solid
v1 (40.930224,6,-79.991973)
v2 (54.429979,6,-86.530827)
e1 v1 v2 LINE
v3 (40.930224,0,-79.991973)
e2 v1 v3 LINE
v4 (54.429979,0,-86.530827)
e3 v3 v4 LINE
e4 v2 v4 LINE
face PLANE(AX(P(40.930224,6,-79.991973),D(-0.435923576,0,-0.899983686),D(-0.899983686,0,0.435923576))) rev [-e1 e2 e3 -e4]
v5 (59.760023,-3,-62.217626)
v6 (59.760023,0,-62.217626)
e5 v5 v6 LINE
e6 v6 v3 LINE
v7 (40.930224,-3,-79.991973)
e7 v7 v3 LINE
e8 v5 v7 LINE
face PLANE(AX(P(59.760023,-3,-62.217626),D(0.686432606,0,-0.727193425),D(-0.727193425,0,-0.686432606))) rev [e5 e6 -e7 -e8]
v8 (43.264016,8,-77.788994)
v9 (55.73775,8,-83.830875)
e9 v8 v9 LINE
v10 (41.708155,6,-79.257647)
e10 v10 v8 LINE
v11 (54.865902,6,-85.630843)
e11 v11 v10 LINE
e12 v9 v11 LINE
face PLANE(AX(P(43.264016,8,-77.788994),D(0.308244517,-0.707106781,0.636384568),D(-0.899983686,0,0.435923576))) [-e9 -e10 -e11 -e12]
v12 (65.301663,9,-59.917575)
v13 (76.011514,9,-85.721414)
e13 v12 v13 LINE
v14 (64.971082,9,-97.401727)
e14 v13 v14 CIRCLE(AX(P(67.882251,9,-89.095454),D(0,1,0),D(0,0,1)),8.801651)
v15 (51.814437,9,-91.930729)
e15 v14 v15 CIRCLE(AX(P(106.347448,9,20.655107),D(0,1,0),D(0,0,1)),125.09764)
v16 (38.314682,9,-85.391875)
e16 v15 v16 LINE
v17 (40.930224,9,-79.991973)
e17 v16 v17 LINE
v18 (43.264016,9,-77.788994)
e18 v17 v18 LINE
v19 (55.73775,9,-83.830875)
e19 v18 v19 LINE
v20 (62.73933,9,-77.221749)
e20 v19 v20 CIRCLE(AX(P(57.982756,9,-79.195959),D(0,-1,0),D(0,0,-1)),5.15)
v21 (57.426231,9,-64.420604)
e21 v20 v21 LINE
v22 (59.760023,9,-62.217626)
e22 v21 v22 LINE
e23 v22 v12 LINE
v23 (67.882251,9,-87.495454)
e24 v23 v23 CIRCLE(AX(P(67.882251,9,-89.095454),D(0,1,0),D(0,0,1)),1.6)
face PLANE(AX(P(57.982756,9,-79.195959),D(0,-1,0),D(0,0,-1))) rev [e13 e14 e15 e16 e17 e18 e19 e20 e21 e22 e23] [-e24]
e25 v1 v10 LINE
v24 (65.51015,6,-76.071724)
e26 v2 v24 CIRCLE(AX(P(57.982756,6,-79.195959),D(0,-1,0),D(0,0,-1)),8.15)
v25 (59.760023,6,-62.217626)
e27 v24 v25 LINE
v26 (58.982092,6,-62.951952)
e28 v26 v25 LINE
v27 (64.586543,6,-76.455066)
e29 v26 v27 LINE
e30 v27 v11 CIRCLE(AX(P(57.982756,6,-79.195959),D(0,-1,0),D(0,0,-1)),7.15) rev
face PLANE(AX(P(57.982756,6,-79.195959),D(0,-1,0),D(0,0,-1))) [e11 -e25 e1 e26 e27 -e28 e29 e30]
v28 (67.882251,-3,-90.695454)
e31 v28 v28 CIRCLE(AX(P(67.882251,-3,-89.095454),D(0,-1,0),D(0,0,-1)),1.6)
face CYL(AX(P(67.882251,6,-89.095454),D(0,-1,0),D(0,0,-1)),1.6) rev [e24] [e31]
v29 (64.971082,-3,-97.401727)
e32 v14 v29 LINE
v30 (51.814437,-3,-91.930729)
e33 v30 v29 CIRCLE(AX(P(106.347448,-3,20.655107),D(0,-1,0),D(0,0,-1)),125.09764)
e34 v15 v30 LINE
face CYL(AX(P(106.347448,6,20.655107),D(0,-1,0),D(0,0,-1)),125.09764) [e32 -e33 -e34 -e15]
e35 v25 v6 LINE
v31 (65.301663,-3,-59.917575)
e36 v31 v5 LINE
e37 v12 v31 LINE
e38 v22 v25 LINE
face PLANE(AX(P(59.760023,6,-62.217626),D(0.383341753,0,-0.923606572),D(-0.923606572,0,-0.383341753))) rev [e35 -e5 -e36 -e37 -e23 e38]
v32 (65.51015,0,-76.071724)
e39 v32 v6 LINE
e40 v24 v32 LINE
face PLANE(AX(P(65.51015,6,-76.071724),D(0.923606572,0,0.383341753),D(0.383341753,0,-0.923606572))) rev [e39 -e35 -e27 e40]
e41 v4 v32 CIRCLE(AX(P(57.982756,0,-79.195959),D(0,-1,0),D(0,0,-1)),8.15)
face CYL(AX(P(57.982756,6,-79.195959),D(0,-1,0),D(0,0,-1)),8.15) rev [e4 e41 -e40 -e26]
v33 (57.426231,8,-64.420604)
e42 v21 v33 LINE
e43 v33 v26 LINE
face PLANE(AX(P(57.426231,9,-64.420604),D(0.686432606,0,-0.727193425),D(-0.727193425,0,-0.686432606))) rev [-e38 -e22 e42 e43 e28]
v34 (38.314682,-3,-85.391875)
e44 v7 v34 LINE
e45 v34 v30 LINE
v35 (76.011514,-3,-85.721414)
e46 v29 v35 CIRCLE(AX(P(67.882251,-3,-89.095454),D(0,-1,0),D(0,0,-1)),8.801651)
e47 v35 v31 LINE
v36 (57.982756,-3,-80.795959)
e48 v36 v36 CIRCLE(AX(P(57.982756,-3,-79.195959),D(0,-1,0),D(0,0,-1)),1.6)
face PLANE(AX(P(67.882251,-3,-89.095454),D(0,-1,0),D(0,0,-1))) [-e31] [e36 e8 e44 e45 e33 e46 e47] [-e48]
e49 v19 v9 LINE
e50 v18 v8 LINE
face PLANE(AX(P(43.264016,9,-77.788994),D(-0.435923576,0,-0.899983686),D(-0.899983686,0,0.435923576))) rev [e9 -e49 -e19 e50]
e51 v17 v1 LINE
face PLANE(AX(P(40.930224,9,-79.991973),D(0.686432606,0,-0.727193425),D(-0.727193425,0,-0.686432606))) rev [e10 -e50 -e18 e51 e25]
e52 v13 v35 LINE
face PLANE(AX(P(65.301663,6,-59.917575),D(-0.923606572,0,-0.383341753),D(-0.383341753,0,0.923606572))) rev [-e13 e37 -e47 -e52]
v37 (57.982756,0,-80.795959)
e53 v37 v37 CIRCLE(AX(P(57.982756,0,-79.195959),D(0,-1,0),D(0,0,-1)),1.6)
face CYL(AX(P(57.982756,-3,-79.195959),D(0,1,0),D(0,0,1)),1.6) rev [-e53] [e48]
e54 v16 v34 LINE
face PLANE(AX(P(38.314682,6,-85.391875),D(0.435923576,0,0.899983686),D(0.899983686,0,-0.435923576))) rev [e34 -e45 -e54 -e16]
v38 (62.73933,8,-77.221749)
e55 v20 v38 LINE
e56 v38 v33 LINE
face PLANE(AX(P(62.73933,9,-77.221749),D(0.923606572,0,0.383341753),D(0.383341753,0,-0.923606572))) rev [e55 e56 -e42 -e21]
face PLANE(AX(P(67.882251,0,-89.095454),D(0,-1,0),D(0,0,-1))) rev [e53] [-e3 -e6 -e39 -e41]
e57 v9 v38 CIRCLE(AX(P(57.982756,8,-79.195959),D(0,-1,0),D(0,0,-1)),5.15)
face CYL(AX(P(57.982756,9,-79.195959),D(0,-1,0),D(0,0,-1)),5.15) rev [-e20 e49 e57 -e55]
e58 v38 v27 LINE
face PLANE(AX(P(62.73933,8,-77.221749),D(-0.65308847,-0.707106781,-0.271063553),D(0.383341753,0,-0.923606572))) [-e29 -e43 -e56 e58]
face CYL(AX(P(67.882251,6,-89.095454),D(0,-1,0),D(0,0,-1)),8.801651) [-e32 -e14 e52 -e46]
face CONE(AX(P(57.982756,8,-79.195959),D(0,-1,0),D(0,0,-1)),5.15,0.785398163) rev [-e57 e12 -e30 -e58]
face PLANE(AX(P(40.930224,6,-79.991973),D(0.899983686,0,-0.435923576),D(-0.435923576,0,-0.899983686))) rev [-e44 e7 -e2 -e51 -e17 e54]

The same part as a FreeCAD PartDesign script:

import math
import FreeCAD as App
import Part
import Sketcher


def edges_at(feature, points):
    """Names of the edges that pass closest to the given points."""
    edges = feature.Shape.Edges
    near = lambda p: min(range(len(edges)), key=lambda i: edges[i].distToShape(Part.Vertex(*p))[0])
    return sorted({f"Edge{near(p) + 1}" for p in points})

doc = App.newDocument("Part")
body = doc.addObject("PartDesign::Body", "Body")

# Sketch on XZ plane
sketch1 = body.newObject("Sketcher::SketchObject", "Sketch")
sketch1.AttachmentSupport = (doc.getObject("XZ_Plane"), [""])
sketch1.MapMode = "FlatFace"
sketch1.addGeometry([
    Part.LineSegment(App.Vector(40.9, -80, 0), App.Vector(54.4, -86.5, 0)),  # 0
    Part.ArcOfCircle(Part.Circle(App.Vector(58, -79.2, 0), App.Vector(0, 0, 1), 8.2), math.radians(-116), math.radians(23)),  # 1
    Part.LineSegment(App.Vector(65.5, -76.1, 0), App.Vector(59.8, -62.2, 0)),  # 2
    Part.LineSegment(App.Vector(59.8, -62.2, 0), App.Vector(65.3, -59.9, 0)),  # 3
    Part.LineSegment(App.Vector(65.3, -59.9, 0), App.Vector(76, -85.7, 0)),  # 4
    Part.ArcOfCircle(Part.Circle(App.Vector(67.9, -89.1, 0), App.Vector(0, 0, 1), 8.8), math.radians(-109), math.radians(23)),  # 5
    Part.ArcOfCircle(Part.Circle(App.Vector(106.3, 20.7, 0), App.Vector(0, 0, 1), 125.1), math.radians(-115.84), math.radians(-109.31)),  # 6
    Part.LineSegment(App.Vector(51.8, -91.9, 0), App.Vector(38.3, -85.4, 0)),  # 7
    Part.LineSegment(App.Vector(38.3, -85.4, 0), App.Vector(40.9, -80, 0)),  # 8
    Part.Circle(App.Vector(67.9, -89.1, 0), App.Vector(0, 0, 1), 1.6),  # 9
], False)
sketch1.addConstraint([
    Sketcher.Constraint("Tangent", 0, 2, 1, 1),
    Sketcher.Constraint("Tangent", 1, 2, 2, 1),
    Sketcher.Constraint("Coincident", 2, 2, 3, 1),
    Sketcher.Constraint("Coincident", 3, 2, 4, 1),
    Sketcher.Constraint("Tangent", 4, 2, 5, 2),
    Sketcher.Constraint("Tangent", 5, 1, 6, 2),
    Sketcher.Constraint("Tangent", 6, 1, 7, 1),
    Sketcher.Constraint("Coincident", 7, 2, 8, 1),
    Sketcher.Constraint("Coincident", 8, 2, 0, 1),
    Sketcher.Constraint("Coincident", 9, 3, 5, 3),
    Sketcher.Constraint("Perpendicular", 2, 3),
    Sketcher.Constraint("Perpendicular", 3, 4),
    Sketcher.Constraint("Parallel", 0, 7),
    Sketcher.Constraint("Perpendicular", 7, 8),
    Sketcher.Constraint("Equal", 0, 2),
    Sketcher.Constraint("Equal", 2, 7),
    Sketcher.Constraint("Equal", 3, 8),
    Sketcher.Constraint("Diameter", 9, 3.2),
    Sketcher.Constraint("Radius", 1, 8.15),
    Sketcher.Constraint("Distance", 0, 15.0),
    Sketcher.Constraint("Distance", 3, 6.0),
    Sketcher.Constraint("Radius", 5, 8.801651),
    Sketcher.Constraint("Radius", 6, 125.09764),
    Sketcher.Constraint("DistanceY", 5, 1, 6, 1, 5.470998),
    Sketcher.Constraint("DistanceX", 1, 2, 5, 3, 2.372101),
    Sketcher.Constraint("DistanceY", 1, 3, -1, 1, 79.195959),
    Sketcher.Constraint("DistanceX", -1, 1, 5, 3, 67.882251),
])
pad1 = body.newObject("PartDesign::Pad", "Pad")
pad1.Profile = sketch1
pad1.Length = 6
pad1.Reversed = True

# Sketch on XZ plane
sketch2 = body.newObject("Sketcher::SketchObject", "Sketch001")
sketch2.AttachmentSupport = (doc.getObject("XZ_Plane"), [""])
sketch2.MapMode = "FlatFace"
sketch2.AttachmentOffset = App.Placement(App.Vector(0, 0, 3), App.Rotation())
sketch2.addGeometry([
    Part.LineSegment(App.Vector(76, -85.7, 0), App.Vector(65.3, -59.9, 0)),  # 0
    Part.LineSegment(App.Vector(65.3, -59.9, 0), App.Vector(59.8, -62.2, 0)),  # 1
    Part.LineSegment(App.Vector(59.8, -62.2, 0), App.Vector(40.9, -80, 0)),  # 2
    Part.LineSegment(App.Vector(40.9, -80, 0), App.Vector(38.3, -85.4, 0)),  # 3
    Part.LineSegment(App.Vector(38.3, -85.4, 0), App.Vector(51.8, -91.9, 0)),  # 4
    Part.ArcOfCircle(Part.Circle(App.Vector(106.3, 20.7, 0), App.Vector(0, 0, 1), 125.1), math.radians(-115.84), math.radians(-109.31)),  # 5
    Part.ArcOfCircle(Part.Circle(App.Vector(67.9, -89.1, 0), App.Vector(0, 0, 1), 8.8), math.radians(-109), math.radians(23)),  # 6
    Part.Circle(App.Vector(67.9, -89.1, 0), App.Vector(0, 0, 1), 1.6),  # 7
    Part.Circle(App.Vector(58, -79.2, 0), App.Vector(0, 0, 1), 1.6),  # 8
], False)
sketch2.addConstraint([
    Sketcher.Constraint("Coincident", 0, 2, 1, 1),
    Sketcher.Constraint("Coincident", 1, 2, 2, 1),
    Sketcher.Constraint("Coincident", 2, 2, 3, 1),
    Sketcher.Constraint("Coincident", 3, 2, 4, 1),
    Sketcher.Constraint("Tangent", 4, 2, 5, 1),
    Sketcher.Constraint("Tangent", 5, 2, 6, 1),
    Sketcher.Constraint("Tangent", 6, 2, 0, 1),
    Sketcher.Constraint("Coincident", 7, 3, 6, 3),
    Sketcher.Constraint("Equal", 7, 8),
    Sketcher.Constraint("Perpendicular", 0, 1),
    Sketcher.Constraint("Perpendicular", 3, 4),
    Sketcher.Constraint("Equal", 1, 3),
    Sketcher.Constraint("Diameter", 7, 3.2),
    Sketcher.Constraint("Distance", 1, 6.0),
    Sketcher.Constraint("Distance", 4, 15.0),
    Sketcher.Constraint("Radius", 5, 125.09764),
    Sketcher.Constraint("Radius", 6, 8.801651),
    Sketcher.Constraint("DistanceY", 5, 2, 4, 2, 5.470998),
    Sketcher.Constraint("Distance", 2, 25.893798),
    Sketcher.Constraint("DistanceX", 2, 2, 1, 2, 18.8298),
    Sketcher.Constraint("DistanceX", 3, 2, 5, 2, 26.6564),
    Sketcher.Constraint("DistanceX", -1, 1, 5, 3, 106.347448),
    Sketcher.Constraint("DistanceY", 8, 3, -1, 1, 79.195959),
    Sketcher.Constraint("DistanceY", 4, 2, -1, 1, 91.930729),
    Sketcher.Constraint("DistanceX", 8, 3, 5, 3, 48.364692),
])
pad2 = body.newObject("PartDesign::Pad", "Pad001")
pad2.Profile = sketch2
pad2.Length = 3
pad2.Reversed = True

# Sketch on XZ plane
sketch3 = body.newObject("Sketcher::SketchObject", "Sketch002")
sketch3.AttachmentSupport = (doc.getObject("XZ_Plane"), [""])
sketch3.MapMode = "FlatFace"
sketch3.AttachmentOffset = App.Placement(App.Vector(0, 0, -6), App.Rotation())
sketch3.addGeometry([
    Part.LineSegment(App.Vector(38.3, -85.4, 0), App.Vector(40.9, -80, 0)),  # 0
    Part.LineSegment(App.Vector(40.9, -80, 0), App.Vector(43.3, -77.8, 0)),  # 1
    Part.LineSegment(App.Vector(43.3, -77.8, 0), App.Vector(55.7, -83.8, 0)),  # 2
    Part.ArcOfCircle(Part.Circle(App.Vector(58, -79.2, 0), App.Vector(0, 0, 1), 5.2), math.radians(-116), math.radians(23)),  # 3
    Part.LineSegment(App.Vector(62.7, -77.2, 0), App.Vector(57.4, -64.4, 0)),  # 4
    Part.LineSegment(App.Vector(57.4, -64.4, 0), App.Vector(59.8, -62.2, 0)),  # 5
    Part.LineSegment(App.Vector(59.8, -62.2, 0), App.Vector(65.3, -59.9, 0)),  # 6
    Part.LineSegment(App.Vector(65.3, -59.9, 0), App.Vector(76, -85.7, 0)),  # 7
    Part.ArcOfCircle(Part.Circle(App.Vector(67.9, -89.1, 0), App.Vector(0, 0, 1), 8.8), math.radians(-109), math.radians(23)),  # 8
    Part.ArcOfCircle(Part.Circle(App.Vector(106.3, 20.7, 0), App.Vector(0, 0, 1), 125.1), math.radians(-115.84), math.radians(-109.31)),  # 9
    Part.LineSegment(App.Vector(51.8, -91.9, 0), App.Vector(38.3, -85.4, 0)),  # 10
    Part.Circle(App.Vector(67.9, -89.1, 0), App.Vector(0, 0, 1), 1.6),  # 11
], False)
sketch3.addConstraint([
    Sketcher.Constraint("Coincident", 0, 2, 1, 1),
    Sketcher.Constraint("Coincident", 1, 2, 2, 1),
    Sketcher.Constraint("Tangent", 2, 2, 3, 1),
    Sketcher.Constraint("Tangent", 3, 2, 4, 1),
    Sketcher.Constraint("Coincident", 4, 2, 5, 1),
    Sketcher.Constraint("Coincident", 5, 2, 6, 1),
    Sketcher.Constraint("Coincident", 6, 2, 7, 1),
    Sketcher.Constraint("Tangent", 7, 2, 8, 2),
    Sketcher.Constraint("Tangent", 8, 1, 9, 2),
    Sketcher.Constraint("Tangent", 9, 1, 10, 1),
    Sketcher.Constraint("Coincident", 10, 2, 0, 1),
    Sketcher.Constraint("Coincident", 11, 3, 8, 3),
    Sketcher.Constraint("Perpendicular", 0, 2),
    Sketcher.Constraint("Parallel", 1, 5),
    Sketcher.Constraint("Perpendicular", 4, 6),
    Sketcher.Constraint("Perpendicular", 6, 7),
    Sketcher.Constraint("Parallel", 2, 10),
    Sketcher.Constraint("Equal", 2, 4),
    Sketcher.Constraint("Equal", 1, 5),
    Sketcher.Constraint("Equal", 0, 6),
    Sketcher.Constraint("Diameter", 11, 3.2),
    Sketcher.Constraint("Radius", 3, 5.15),
    Sketcher.Constraint("Distance", 0, 6.0),
    Sketcher.Constraint("Distance", 10, 15.0),
    Sketcher.Constraint("Radius", 8, 8.801651),
    Sketcher.Constraint("Radius", 9, 125.09764),
    Sketcher.Constraint("DistanceY", 8, 1, 9, 1, 5.470998),
    Sketcher.Constraint("DistanceY", 10, 2, 2, 2, 1.561),
    Sketcher.Constraint("DistanceY", 1, 2, 9, 3, 98.444101),
    Sketcher.Constraint("DistanceX", 2, 2, 8, 3, 12.144501),
    Sketcher.Constraint("DistanceX", 4, 2, 3, 2, 5.313099),
    Sketcher.Constraint("DistanceY", 3, 3, -1, 1, 79.195959),
    Sketcher.Constraint("DistanceX", -1, 1, 8, 3, 67.882251),
])
pad3 = body.newObject("PartDesign::Pad", "Pad002")
pad3.Profile = sketch3
pad3.Length = 3
pad3.Reversed = True
doc.recompute()

chamfer = body.newObject("PartDesign::Chamfer", "Chamfer")
chamfer.Base = (pad3, edges_at(pad3, [(49.501, 6, -80.81), (61.518, 6, -82.941), (60.083, 6, -70.821)]))
chamfer.Size = 2

doc.recompute()
